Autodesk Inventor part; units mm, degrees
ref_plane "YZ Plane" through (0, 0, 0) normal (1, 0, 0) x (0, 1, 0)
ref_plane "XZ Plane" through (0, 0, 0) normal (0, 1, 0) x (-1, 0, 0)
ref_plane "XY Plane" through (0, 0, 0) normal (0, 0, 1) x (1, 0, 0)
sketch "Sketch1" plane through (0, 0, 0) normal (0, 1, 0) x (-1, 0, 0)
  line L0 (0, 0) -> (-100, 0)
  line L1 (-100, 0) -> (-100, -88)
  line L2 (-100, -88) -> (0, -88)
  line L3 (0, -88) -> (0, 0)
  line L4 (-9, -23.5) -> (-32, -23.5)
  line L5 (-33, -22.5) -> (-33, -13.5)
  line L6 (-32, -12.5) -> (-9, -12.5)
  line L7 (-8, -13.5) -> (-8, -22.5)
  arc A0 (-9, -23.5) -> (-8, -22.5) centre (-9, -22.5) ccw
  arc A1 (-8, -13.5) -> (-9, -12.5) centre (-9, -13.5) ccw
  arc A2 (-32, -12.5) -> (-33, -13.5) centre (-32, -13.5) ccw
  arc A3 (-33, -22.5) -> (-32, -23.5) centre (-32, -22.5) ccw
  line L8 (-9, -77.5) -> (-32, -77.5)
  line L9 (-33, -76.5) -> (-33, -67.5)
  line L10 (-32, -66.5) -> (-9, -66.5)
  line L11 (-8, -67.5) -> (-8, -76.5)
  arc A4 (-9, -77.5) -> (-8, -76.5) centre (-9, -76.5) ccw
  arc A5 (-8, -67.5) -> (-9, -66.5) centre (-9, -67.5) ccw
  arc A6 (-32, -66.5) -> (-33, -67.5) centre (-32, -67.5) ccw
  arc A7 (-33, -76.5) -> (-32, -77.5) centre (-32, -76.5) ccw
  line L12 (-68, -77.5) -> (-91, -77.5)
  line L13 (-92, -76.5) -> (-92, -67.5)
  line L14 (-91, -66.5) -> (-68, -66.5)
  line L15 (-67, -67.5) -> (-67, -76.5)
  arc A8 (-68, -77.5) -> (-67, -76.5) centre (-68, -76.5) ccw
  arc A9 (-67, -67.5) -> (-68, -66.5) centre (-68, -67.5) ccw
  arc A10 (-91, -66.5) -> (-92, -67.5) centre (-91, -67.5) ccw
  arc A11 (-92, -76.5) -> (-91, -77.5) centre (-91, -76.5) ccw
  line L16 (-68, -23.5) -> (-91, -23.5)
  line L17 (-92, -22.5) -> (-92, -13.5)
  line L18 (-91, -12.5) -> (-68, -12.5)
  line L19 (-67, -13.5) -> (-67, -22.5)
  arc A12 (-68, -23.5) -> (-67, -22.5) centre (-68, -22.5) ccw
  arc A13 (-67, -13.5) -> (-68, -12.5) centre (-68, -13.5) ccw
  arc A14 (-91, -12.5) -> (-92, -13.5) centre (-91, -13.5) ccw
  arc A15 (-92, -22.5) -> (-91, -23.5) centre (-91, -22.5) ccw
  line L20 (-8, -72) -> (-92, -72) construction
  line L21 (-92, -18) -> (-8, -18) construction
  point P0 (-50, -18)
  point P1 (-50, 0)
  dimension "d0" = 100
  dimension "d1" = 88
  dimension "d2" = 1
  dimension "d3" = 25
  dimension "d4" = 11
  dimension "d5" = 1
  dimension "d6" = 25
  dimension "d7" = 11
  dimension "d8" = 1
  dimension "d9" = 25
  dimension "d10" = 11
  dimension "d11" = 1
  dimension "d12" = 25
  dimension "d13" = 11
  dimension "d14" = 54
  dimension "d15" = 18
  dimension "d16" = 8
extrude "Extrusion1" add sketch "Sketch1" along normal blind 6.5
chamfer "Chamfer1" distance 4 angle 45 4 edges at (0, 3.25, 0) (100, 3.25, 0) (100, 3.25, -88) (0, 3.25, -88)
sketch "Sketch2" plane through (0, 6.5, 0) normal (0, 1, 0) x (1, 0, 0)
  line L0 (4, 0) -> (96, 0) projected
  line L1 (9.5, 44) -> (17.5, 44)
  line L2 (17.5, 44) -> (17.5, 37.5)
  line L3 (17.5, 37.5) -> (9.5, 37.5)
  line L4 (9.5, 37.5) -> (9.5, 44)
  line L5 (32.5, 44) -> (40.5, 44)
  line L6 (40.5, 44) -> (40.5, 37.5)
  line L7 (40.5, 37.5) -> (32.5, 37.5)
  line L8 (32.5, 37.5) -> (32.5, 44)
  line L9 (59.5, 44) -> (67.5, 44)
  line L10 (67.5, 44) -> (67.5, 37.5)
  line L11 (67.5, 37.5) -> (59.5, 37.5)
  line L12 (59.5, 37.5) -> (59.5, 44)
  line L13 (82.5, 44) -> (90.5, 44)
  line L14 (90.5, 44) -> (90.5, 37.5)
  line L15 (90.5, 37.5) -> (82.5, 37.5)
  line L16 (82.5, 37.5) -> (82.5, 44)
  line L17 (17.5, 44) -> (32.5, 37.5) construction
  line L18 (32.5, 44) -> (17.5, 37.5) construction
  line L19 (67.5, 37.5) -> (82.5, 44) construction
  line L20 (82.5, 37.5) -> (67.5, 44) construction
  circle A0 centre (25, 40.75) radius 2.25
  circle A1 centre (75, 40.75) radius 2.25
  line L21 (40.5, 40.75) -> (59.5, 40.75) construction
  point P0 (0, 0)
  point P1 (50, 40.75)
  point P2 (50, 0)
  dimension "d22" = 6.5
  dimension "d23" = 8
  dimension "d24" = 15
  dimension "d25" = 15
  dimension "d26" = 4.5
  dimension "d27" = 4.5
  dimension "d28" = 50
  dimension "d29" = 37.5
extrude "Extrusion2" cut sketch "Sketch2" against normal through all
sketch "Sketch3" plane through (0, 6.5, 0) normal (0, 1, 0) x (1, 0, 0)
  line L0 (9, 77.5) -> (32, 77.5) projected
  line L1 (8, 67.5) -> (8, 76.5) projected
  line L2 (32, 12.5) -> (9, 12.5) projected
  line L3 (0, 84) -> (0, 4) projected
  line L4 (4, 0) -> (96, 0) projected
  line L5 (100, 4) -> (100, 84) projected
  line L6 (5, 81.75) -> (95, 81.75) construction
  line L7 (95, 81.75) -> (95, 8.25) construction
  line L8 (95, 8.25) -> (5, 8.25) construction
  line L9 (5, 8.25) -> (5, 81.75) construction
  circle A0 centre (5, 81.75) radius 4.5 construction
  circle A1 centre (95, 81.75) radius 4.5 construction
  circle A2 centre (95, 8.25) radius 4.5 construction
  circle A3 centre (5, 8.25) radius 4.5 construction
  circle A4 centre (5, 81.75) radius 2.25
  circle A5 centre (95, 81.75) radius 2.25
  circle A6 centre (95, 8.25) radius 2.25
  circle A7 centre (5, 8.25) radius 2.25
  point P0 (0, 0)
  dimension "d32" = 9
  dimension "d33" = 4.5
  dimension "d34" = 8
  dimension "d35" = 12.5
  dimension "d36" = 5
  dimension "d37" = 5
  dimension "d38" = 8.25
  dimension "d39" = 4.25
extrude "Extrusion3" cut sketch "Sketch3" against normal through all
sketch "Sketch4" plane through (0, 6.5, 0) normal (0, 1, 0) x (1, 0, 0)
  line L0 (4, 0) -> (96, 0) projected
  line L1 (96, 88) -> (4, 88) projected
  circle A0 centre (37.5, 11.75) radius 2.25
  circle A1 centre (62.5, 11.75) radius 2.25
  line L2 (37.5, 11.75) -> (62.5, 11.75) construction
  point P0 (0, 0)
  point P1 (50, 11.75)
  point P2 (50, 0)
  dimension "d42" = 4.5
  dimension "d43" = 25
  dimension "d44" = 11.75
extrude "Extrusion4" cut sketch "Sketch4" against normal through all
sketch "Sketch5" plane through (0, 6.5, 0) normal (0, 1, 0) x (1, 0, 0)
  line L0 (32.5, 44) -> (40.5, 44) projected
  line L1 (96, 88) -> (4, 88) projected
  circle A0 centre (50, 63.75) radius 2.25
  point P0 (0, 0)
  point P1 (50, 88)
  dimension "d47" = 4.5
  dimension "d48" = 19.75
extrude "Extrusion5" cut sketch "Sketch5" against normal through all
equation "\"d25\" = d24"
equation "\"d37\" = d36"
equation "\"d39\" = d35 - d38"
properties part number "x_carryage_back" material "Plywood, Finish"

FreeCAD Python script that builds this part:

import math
import FreeCAD as App
import Part
import Sketcher
from FreeCAD import Vector


def edges_at(feature, points):
    """Names of the edges that pass closest to the given points."""
    edges = feature.Shape.Edges
    near = lambda p: min(range(len(edges)), key=lambda i: edges[i].distToShape(Part.Vertex(*p))[0])
    return sorted({f"Edge{near(p) + 1}" for p in points})

doc = App.newDocument("Part")
body = doc.addObject("PartDesign::Body", "Body")

sketch1 = doc.addObject("Sketcher::SketchObject", "Sketch")
body.addObject(sketch1)
sketch1.AttachmentSupport = (doc.XZ_Plane, [""])
sketch1.MapMode = "FlatFace"
sketch1.addGeometry([
    Part.LineSegment(Vector(0, -88, 0), Vector(0, 0, 0)),
    Part.LineSegment(Vector(0, 0, 0), Vector(100, 0, 0)),
    Part.LineSegment(Vector(100, 0, 0), Vector(100, -88, 0)),
    Part.LineSegment(Vector(100, -88, 0), Vector(0, -88, 0)),
    Part.ArcOfCircle(Part.Circle(Vector(68, -76.5, 0), Vector(0, 0, 1), 1), math.radians(180), math.radians(270)),
    Part.LineSegment(Vector(68, -77.5, 0), Vector(91, -77.5, 0)),
    Part.ArcOfCircle(Part.Circle(Vector(91, -76.5, 0), Vector(0, 0, 1), 1), math.radians(-90), math.radians(0)),
    Part.LineSegment(Vector(92, -76.5, 0), Vector(92, -67.5, 0)),
    Part.ArcOfCircle(Part.Circle(Vector(91, -67.5, 0), Vector(0, 0, 1), 1), math.radians(0), math.radians(90)),
    Part.LineSegment(Vector(91, -66.5, 0), Vector(68, -66.5, 0)),
    Part.ArcOfCircle(Part.Circle(Vector(68, -67.5, 0), Vector(0, 0, 1), 1), math.radians(90), math.radians(180)),
    Part.LineSegment(Vector(67, -67.5, 0), Vector(67, -76.5, 0)),
    Part.ArcOfCircle(Part.Circle(Vector(9, -76.5, 0), Vector(0, 0, 1), 1), math.radians(180), math.radians(270)),
    Part.LineSegment(Vector(9, -77.5, 0), Vector(32, -77.5, 0)),
    Part.ArcOfCircle(Part.Circle(Vector(32, -76.5, 0), Vector(0, 0, 1), 1), math.radians(-90), math.radians(0)),
    Part.LineSegment(Vector(33, -76.5, 0), Vector(33, -67.5, 0)),
    Part.ArcOfCircle(Part.Circle(Vector(32, -67.5, 0), Vector(0, 0, 1), 1), math.radians(0), math.radians(90)),
    Part.LineSegment(Vector(32, -66.5, 0), Vector(9, -66.5, 0)),
    Part.ArcOfCircle(Part.Circle(Vector(9, -67.5, 0), Vector(0, 0, 1), 1), math.radians(90), math.radians(180)),
    Part.LineSegment(Vector(8, -67.5, 0), Vector(8, -76.5, 0)),
    Part.ArcOfCircle(Part.Circle(Vector(68, -22.5, 0), Vector(0, 0, 1), 1), math.radians(180), math.radians(270)),
    Part.LineSegment(Vector(68, -23.5, 0), Vector(91, -23.5, 0)),
    Part.ArcOfCircle(Part.Circle(Vector(91, -22.5, 0), Vector(0, 0, 1), 1), math.radians(-90), math.radians(0)),
    Part.LineSegment(Vector(92, -22.5, 0), Vector(92, -13.5, 0)),
    Part.ArcOfCircle(Part.Circle(Vector(91, -13.5, 0), Vector(0, 0, 1), 1), math.radians(0), math.radians(90)),
    Part.LineSegment(Vector(91, -12.5, 0), Vector(68, -12.5, 0)),
    Part.ArcOfCircle(Part.Circle(Vector(68, -13.5, 0), Vector(0, 0, 1), 1), math.radians(90), math.radians(180)),
    Part.LineSegment(Vector(67, -13.5, 0), Vector(67, -22.5, 0)),
    Part.ArcOfCircle(Part.Circle(Vector(9, -22.5, 0), Vector(0, 0, 1), 1), math.radians(180), math.radians(270)),
    Part.LineSegment(Vector(9, -23.5, 0), Vector(32, -23.5, 0)),
    Part.ArcOfCircle(Part.Circle(Vector(32, -22.5, 0), Vector(0, 0, 1), 1), math.radians(-90), math.radians(0)),
    Part.LineSegment(Vector(33, -22.5, 0), Vector(33, -13.5, 0)),
    Part.ArcOfCircle(Part.Circle(Vector(32, -13.5, 0), Vector(0, 0, 1), 1), math.radians(0), math.radians(90)),
    Part.LineSegment(Vector(32, -12.5, 0), Vector(9, -12.5, 0)),
    Part.ArcOfCircle(Part.Circle(Vector(9, -13.5, 0), Vector(0, 0, 1), 1), math.radians(90), math.radians(180)),
    Part.LineSegment(Vector(8, -13.5, 0), Vector(8, -22.5, 0)),
], False)
sketch1.addConstraint([
    Sketcher.Constraint("Coincident", 0, 2, 1, 1),
    Sketcher.Constraint("Coincident", 1, 2, 2, 1),
    Sketcher.Constraint("Coincident", 2, 2, 3, 1),
    Sketcher.Constraint("Coincident", 3, 2, 0, 1),
    Sketcher.Constraint("Tangent", 4, 2, 5, 1),
    Sketcher.Constraint("Tangent", 5, 2, 6, 1),
    Sketcher.Constraint("Tangent", 6, 2, 7, 1),
    Sketcher.Constraint("Tangent", 7, 2, 8, 1),
    Sketcher.Constraint("Tangent", 8, 2, 9, 1),
    Sketcher.Constraint("Tangent", 9, 2, 10, 1),
    Sketcher.Constraint("Tangent", 10, 2, 11, 1),
    Sketcher.Constraint("Tangent", 11, 2, 4, 1),
    Sketcher.Constraint("Tangent", 12, 2, 13, 1),
    Sketcher.Constraint("Tangent", 13, 2, 14, 1),
    Sketcher.Constraint("Tangent", 14, 2, 15, 1),
    Sketcher.Constraint("Tangent", 15, 2, 16, 1),
    Sketcher.Constraint("Tangent", 16, 2, 17, 1),
    Sketcher.Constraint("Tangent", 17, 2, 18, 1),
    Sketcher.Constraint("Tangent", 18, 2, 19, 1),
    Sketcher.Constraint("Tangent", 19, 2, 12, 1),
    Sketcher.Constraint("Tangent", 20, 2, 21, 1),
    Sketcher.Constraint("Tangent", 21, 2, 22, 1),
    Sketcher.Constraint("Tangent", 22, 2, 23, 1),
    Sketcher.Constraint("Tangent", 23, 2, 24, 1),
    Sketcher.Constraint("Tangent", 24, 2, 25, 1),
    Sketcher.Constraint("Tangent", 25, 2, 26, 1),
    Sketcher.Constraint("Tangent", 26, 2, 27, 1),
    Sketcher.Constraint("Tangent", 27, 2, 20, 1),
    Sketcher.Constraint("Tangent", 28, 2, 29, 1),
    Sketcher.Constraint("Tangent", 29, 2, 30, 1),
    Sketcher.Constraint("Tangent", 30, 2, 31, 1),
    Sketcher.Constraint("Tangent", 31, 2, 32, 1),
    Sketcher.Constraint("Tangent", 32, 2, 33, 1),
    Sketcher.Constraint("Tangent", 33, 2, 34, 1),
    Sketcher.Constraint("Tangent", 34, 2, 35, 1),
    Sketcher.Constraint("Tangent", 35, 2, 28, 1),
    Sketcher.Constraint("Vertical", 0),
    Sketcher.Constraint("Horizontal", 1),
    Sketcher.Constraint("Vertical", 2),
    Sketcher.Constraint("Horizontal", 3),
    Sketcher.Constraint("Horizontal", 5),
    Sketcher.Constraint("Vertical", 7),
    Sketcher.Constraint("Horizontal", 9),
    Sketcher.Constraint("Vertical", 11),
    Sketcher.Constraint("Horizontal", 13),
    Sketcher.Constraint("Vertical", 15),
    Sketcher.Constraint("Horizontal", 17),
    Sketcher.Constraint("Vertical", 19),
    Sketcher.Constraint("Horizontal", 21),
    Sketcher.Constraint("Vertical", 23),
    Sketcher.Constraint("Horizontal", 25),
    Sketcher.Constraint("Vertical", 27),
    Sketcher.Constraint("Horizontal", 29),
    Sketcher.Constraint("Vertical", 31),
    Sketcher.Constraint("Horizontal", 33),
    Sketcher.Constraint("Vertical", 35),
    Sketcher.Constraint("Coincident", 0, 2, -1, 1),
    Sketcher.Constraint("Equal", 4, 6),
    Sketcher.Constraint("Equal", 6, 8),
    Sketcher.Constraint("Equal", 8, 10),
    Sketcher.Constraint("Equal", 10, 12),
    Sketcher.Constraint("Equal", 12, 14),
    Sketcher.Constraint("Equal", 14, 16),
    Sketcher.Constraint("Equal", 16, 18),
    Sketcher.Constraint("Equal", 18, 20),
    Sketcher.Constraint("Equal", 20, 22),
    Sketcher.Constraint("Equal", 22, 24),
    Sketcher.Constraint("Equal", 24, 26),
    Sketcher.Constraint("Equal", 26, 28),
    Sketcher.Constraint("Equal", 28, 30),
    Sketcher.Constraint("Equal", 30, 32),
    Sketcher.Constraint("Equal", 32, 34),
    Sketcher.Constraint("Horizontal", 6, 3, 12, 3),
    Sketcher.Constraint("Horizontal", 10, 3, 16, 3),
    Sketcher.Constraint("Horizontal", 22, 3, 28, 3),
    Sketcher.Constraint("Horizontal", 26, 3, 32, 3),
    Sketcher.Constraint("Vertical", 10, 3, 20, 3),
    Sketcher.Constraint("Vertical", 8, 3, 22, 3),
    Sketcher.Constraint("Vertical", 18, 3, 28, 3),
    Sketcher.Constraint("Vertical", 16, 3, 30, 3),
    Sketcher.Constraint("Equal", 9, 13),
    Sketcher.Constraint("Equal", 19, 23),
    Sketcher.Constraint("Radius", 4, 1.0),
    Sketcher.Constraint("DistanceX", 1, 1, 1, 2, 100.0),
    Sketcher.Constraint("DistanceY", 0, 1, 0, 2, 88.0),
    Sketcher.Constraint("DistanceX", -1, 1, 18, 2, 8.0),
    Sketcher.Constraint("DistanceY", 4, 3, 20, 3, 54.0),
    Sketcher.Constraint("DistanceX", 6, 2, 2, 2, 8.0),
    Sketcher.Constraint("DistanceY", 5, 2, 8, 2, 11.0),
    Sketcher.Constraint("DistanceX", 5, 1, 5, 2, 23.0),
    Sketcher.Constraint("DistanceY", 4, 3, -1, 1, 76.5),
])
pad1 = doc.addObject("PartDesign::Pad", "Pad")
body.addObject(pad1)
pad1.Profile = sketch1
pad1.Length = 6.5
pad1.Reversed = True
doc.recompute()

chamfer = doc.addObject("PartDesign::Chamfer", "Chamfer")
body.addObject(chamfer)
chamfer.Base = (pad1, edges_at(pad1, [
    (0, 3.25, 0),
    (100, 3.25, 0),
    (100, 3.25, -88),
    (0, 3.25, -88),
]))
chamfer.Size = 4

sketch2 = doc.addObject("Sketcher::SketchObject", "Sketch001")
body.addObject(sketch2)
sketch2.AttachmentSupport = (doc.XZ_Plane, [""])
sketch2.MapMode = "FlatFace"
sketch2.AttachmentOffset = App.Placement(Vector(0, 0, -6.5), App.Rotation())
sketch2.addGeometry([
    Part.LineSegment(Vector(17.5, -44, 0), Vector(9.5, -44, 0)),
    Part.LineSegment(Vector(9.5, -44, 0), Vector(9.5, -37.5, 0)),
    Part.LineSegment(Vector(9.5, -37.5, 0), Vector(17.5, -37.5, 0)),
    Part.LineSegment(Vector(17.5, -37.5, 0), Vector(17.5, -44, 0)),
    Part.LineSegment(Vector(40.5, -44, 0), Vector(32.5, -44, 0)),
    Part.LineSegment(Vector(32.5, -44, 0), Vector(32.5, -37.5, 0)),
    Part.LineSegment(Vector(32.5, -37.5, 0), Vector(40.5, -37.5, 0)),
    Part.LineSegment(Vector(40.5, -37.5, 0), Vector(40.5, -44, 0)),
    Part.LineSegment(Vector(67.5, -44, 0), Vector(59.5, -44, 0)),
    Part.LineSegment(Vector(59.5, -44, 0), Vector(59.5, -37.5, 0)),
    Part.LineSegment(Vector(59.5, -37.5, 0), Vector(67.5, -37.5, 0)),
    Part.LineSegment(Vector(67.5, -37.5, 0), Vector(67.5, -44, 0)),
    Part.LineSegment(Vector(90.5, -44, 0), Vector(82.5, -44, 0)),
    Part.LineSegment(Vector(82.5, -44, 0), Vector(82.5, -37.5, 0)),
    Part.LineSegment(Vector(82.5, -37.5, 0), Vector(90.5, -37.5, 0)),
    Part.LineSegment(Vector(90.5, -37.5, 0), Vector(90.5, -44, 0)),
    Part.Circle(Vector(25, -40.75, 0), Vector(0, 0, 1), 2.25),
    Part.Circle(Vector(75, -40.75, 0), Vector(0, 0, 1), 2.25),
], False)
sketch2.addConstraint([
    Sketcher.Constraint("Coincident", 0, 2, 1, 1),
    Sketcher.Constraint("Coincident", 1, 2, 2, 1),
    Sketcher.Constraint("Coincident", 2, 2, 3, 1),
    Sketcher.Constraint("Coincident", 3, 2, 0, 1),
    Sketcher.Constraint("Coincident", 4, 2, 5, 1),
    Sketcher.Constraint("Coincident", 5, 2, 6, 1),
    Sketcher.Constraint("Coincident", 6, 2, 7, 1),
    Sketcher.Constraint("Coincident", 7, 2, 4, 1),
    Sketcher.Constraint("Coincident", 8, 2, 9, 1),
    Sketcher.Constraint("Coincident", 9, 2, 10, 1),
    Sketcher.Constraint("Coincident", 10, 2, 11, 1),
    Sketcher.Constraint("Coincident", 11, 2, 8, 1),
    Sketcher.Constraint("Coincident", 12, 2, 13, 1),
    Sketcher.Constraint("Coincident", 13, 2, 14, 1),
    Sketcher.Constraint("Coincident", 14, 2, 15, 1),
    Sketcher.Constraint("Coincident", 15, 2, 12, 1),
    Sketcher.Constraint("Horizontal", 0),
    Sketcher.Constraint("Vertical", 1),
    Sketcher.Constraint("Horizontal", 2),
    Sketcher.Constraint("Vertical", 3),
    Sketcher.Constraint("Horizontal", 4),
    Sketcher.Constraint("Vertical", 5),
    Sketcher.Constraint("Horizontal", 6),
    Sketcher.Constraint("Vertical", 7),
    Sketcher.Constraint("Horizontal", 8),
    Sketcher.Constraint("Vertical", 9),
    Sketcher.Constraint("Horizontal", 10),
    Sketcher.Constraint("Vertical", 11),
    Sketcher.Constraint("Horizontal", 12),
    Sketcher.Constraint("Vertical", 13),
    Sketcher.Constraint("Horizontal", 14),
    Sketcher.Constraint("Vertical", 15),
    Sketcher.Constraint("Equal", 16, 17),
    Sketcher.Constraint("Horizontal", 16, 3, 17, 3),
    Sketcher.Constraint("Horizontal", 3, 2, 4, 2),
    Sketcher.Constraint("Horizontal", 2, 2, 5, 2),
    Sketcher.Constraint("Horizontal", 7, 2, 8, 2),
    Sketcher.Constraint("Horizontal", 6, 2, 9, 2),
    Sketcher.Constraint("Horizontal", 11, 2, 12, 2),
    Sketcher.Constraint("Horizontal", 10, 2, 13, 2),
    Sketcher.Constraint("Equal", 2, 4),
    Sketcher.Constraint("Equal", 6, 8),
    Sketcher.Constraint("Equal", 10, 12),
    Sketcher.Constraint("Diameter", 16, 4.5),
    Sketcher.Constraint("DistanceX", 0, 2, 0, 1, 8.0),
    Sketcher.Constraint("DistanceY", 1, 1, 1, 2, 6.5),
    Sketcher.Constraint("DistanceX", 16, 3, 17, 3, 50.0),
    Sketcher.Constraint("DistanceX", 3, 2, 4, 2, 15.0),
    Sketcher.Constraint("DistanceX", 11, 2, 12, 2, 15.0),
    Sketcher.Constraint("DistanceY", 1, 2, -1, 1, 37.5),
    Sketcher.Constraint("DistanceX", -1, 1, 16, 3, 25.0),
    Sketcher.Constraint("DistanceX", 7, 2, 8, 2, 19.0),
    Sketcher.Constraint("DistanceX", -1, 1, 0, 2, 9.5),
    Sketcher.Constraint("DistanceY", 16, 3, -1, 1, 40.75),
])
pocket1 = doc.addObject("PartDesign::Pocket", "Pocket")
body.addObject(pocket1)
pocket1.Profile = sketch2
pocket1.Type = "ThroughAll"
pocket1.Reversed = True

sketch3 = doc.addObject("Sketcher::SketchObject", "Sketch002")
body.addObject(sketch3)
sketch3.AttachmentSupport = (doc.XZ_Plane, [""])
sketch3.MapMode = "FlatFace"
sketch3.AttachmentOffset = App.Placement(Vector(0, 0, -6.5), App.Rotation())
sketch3.addGeometry([
    Part.Circle(Vector(5, -81.75, 0), Vector(0, 0, 1), 2.25),
    Part.Circle(Vector(95, -81.75, 0), Vector(0, 0, 1), 2.25),
    Part.Circle(Vector(95, -8.25, 0), Vector(0, 0, 1), 2.25),
    Part.Circle(Vector(5, -8.25, 0), Vector(0, 0, 1), 2.25),
], False)
sketch3.addConstraint([
    Sketcher.Constraint("Equal", 0, 1),
    Sketcher.Constraint("Equal", 1, 2),
    Sketcher.Constraint("Equal", 2, 3),
    Sketcher.Constraint("Horizontal", 0, 3, 1, 3),
    Sketcher.Constraint("Horizontal", 2, 3, 3, 3),
    Sketcher.Constraint("Vertical", 1, 3, 2, 3),
    Sketcher.Constraint("Vertical", 0, 3, 3, 3),
    Sketcher.Constraint("Diameter", 0, 4.5),
    Sketcher.Constraint("DistanceX", -1, 1, 0, 3, 5.0),
    Sketcher.Constraint("DistanceY", 2, 3, -1, 1, 8.25),
    Sketcher.Constraint("DistanceX", -1, 1, 1, 3, 95.0),
    Sketcher.Constraint("DistanceY", 1, 3, 2, 3, 73.5),
])
pocket2 = doc.addObject("PartDesign::Pocket", "Pocket001")
body.addObject(pocket2)
pocket2.Profile = sketch3
pocket2.Type = "ThroughAll"
pocket2.Reversed = True

sketch4 = doc.addObject("Sketcher::SketchObject", "Sketch003")
body.addObject(sketch4)
sketch4.AttachmentSupport = (doc.XZ_Plane, [""])
sketch4.MapMode = "FlatFace"
sketch4.AttachmentOffset = App.Placement(Vector(0, 0, -6.5), App.Rotation())
sketch4.addGeometry([
    Part.Circle(Vector(37.5, -11.75, 0), Vector(0, 0, 1), 2.25),
    Part.Circle(Vector(62.5, -11.75, 0), Vector(0, 0, 1), 2.25),
], False)
sketch4.addConstraint([
    Sketcher.Constraint("Equal", 0, 1),
    Sketcher.Constraint("Horizontal", 0, 3, 1, 3),
    Sketcher.Constraint("Diameter", 0, 4.5),
    Sketcher.Constraint("DistanceX", 0, 3, 1, 3, 25.0),
    Sketcher.Constraint("DistanceY", 0, 3, -1, 1, 11.75),
    Sketcher.Constraint("DistanceX", -1, 1, 0, 3, 37.5),
])
pocket3 = doc.addObject("PartDesign::Pocket", "Pocket002")
body.addObject(pocket3)
pocket3.Profile = sketch4
pocket3.Type = "ThroughAll"
pocket3.Reversed = True

sketch5 = doc.addObject("Sketcher::SketchObject", "Sketch004")
body.addObject(sketch5)
sketch5.AttachmentSupport = (doc.XZ_Plane, [""])
sketch5.MapMode = "FlatFace"
sketch5.AttachmentOffset = App.Placement(Vector(0, 0, -6.5), App.Rotation())
sketch5.addGeometry(Part.Circle(Vector(50, -63.75, 0), Vector(0, 0, 1), 2.25), False)
sketch5.addConstraint([
    Sketcher.Constraint("Diameter", 0, 4.5),
    Sketcher.Constraint("DistanceX", -1, 1, 0, 3, 50.0),
    Sketcher.Constraint("DistanceY", 0, 3, -1, 1, 63.75),
])
pocket4 = doc.addObject("PartDesign::Pocket", "Pocket003")
body.addObject(pocket4)
pocket4.Profile = sketch5
pocket4.Type = "ThroughAll"
pocket4.Reversed = True

doc.recompute()
